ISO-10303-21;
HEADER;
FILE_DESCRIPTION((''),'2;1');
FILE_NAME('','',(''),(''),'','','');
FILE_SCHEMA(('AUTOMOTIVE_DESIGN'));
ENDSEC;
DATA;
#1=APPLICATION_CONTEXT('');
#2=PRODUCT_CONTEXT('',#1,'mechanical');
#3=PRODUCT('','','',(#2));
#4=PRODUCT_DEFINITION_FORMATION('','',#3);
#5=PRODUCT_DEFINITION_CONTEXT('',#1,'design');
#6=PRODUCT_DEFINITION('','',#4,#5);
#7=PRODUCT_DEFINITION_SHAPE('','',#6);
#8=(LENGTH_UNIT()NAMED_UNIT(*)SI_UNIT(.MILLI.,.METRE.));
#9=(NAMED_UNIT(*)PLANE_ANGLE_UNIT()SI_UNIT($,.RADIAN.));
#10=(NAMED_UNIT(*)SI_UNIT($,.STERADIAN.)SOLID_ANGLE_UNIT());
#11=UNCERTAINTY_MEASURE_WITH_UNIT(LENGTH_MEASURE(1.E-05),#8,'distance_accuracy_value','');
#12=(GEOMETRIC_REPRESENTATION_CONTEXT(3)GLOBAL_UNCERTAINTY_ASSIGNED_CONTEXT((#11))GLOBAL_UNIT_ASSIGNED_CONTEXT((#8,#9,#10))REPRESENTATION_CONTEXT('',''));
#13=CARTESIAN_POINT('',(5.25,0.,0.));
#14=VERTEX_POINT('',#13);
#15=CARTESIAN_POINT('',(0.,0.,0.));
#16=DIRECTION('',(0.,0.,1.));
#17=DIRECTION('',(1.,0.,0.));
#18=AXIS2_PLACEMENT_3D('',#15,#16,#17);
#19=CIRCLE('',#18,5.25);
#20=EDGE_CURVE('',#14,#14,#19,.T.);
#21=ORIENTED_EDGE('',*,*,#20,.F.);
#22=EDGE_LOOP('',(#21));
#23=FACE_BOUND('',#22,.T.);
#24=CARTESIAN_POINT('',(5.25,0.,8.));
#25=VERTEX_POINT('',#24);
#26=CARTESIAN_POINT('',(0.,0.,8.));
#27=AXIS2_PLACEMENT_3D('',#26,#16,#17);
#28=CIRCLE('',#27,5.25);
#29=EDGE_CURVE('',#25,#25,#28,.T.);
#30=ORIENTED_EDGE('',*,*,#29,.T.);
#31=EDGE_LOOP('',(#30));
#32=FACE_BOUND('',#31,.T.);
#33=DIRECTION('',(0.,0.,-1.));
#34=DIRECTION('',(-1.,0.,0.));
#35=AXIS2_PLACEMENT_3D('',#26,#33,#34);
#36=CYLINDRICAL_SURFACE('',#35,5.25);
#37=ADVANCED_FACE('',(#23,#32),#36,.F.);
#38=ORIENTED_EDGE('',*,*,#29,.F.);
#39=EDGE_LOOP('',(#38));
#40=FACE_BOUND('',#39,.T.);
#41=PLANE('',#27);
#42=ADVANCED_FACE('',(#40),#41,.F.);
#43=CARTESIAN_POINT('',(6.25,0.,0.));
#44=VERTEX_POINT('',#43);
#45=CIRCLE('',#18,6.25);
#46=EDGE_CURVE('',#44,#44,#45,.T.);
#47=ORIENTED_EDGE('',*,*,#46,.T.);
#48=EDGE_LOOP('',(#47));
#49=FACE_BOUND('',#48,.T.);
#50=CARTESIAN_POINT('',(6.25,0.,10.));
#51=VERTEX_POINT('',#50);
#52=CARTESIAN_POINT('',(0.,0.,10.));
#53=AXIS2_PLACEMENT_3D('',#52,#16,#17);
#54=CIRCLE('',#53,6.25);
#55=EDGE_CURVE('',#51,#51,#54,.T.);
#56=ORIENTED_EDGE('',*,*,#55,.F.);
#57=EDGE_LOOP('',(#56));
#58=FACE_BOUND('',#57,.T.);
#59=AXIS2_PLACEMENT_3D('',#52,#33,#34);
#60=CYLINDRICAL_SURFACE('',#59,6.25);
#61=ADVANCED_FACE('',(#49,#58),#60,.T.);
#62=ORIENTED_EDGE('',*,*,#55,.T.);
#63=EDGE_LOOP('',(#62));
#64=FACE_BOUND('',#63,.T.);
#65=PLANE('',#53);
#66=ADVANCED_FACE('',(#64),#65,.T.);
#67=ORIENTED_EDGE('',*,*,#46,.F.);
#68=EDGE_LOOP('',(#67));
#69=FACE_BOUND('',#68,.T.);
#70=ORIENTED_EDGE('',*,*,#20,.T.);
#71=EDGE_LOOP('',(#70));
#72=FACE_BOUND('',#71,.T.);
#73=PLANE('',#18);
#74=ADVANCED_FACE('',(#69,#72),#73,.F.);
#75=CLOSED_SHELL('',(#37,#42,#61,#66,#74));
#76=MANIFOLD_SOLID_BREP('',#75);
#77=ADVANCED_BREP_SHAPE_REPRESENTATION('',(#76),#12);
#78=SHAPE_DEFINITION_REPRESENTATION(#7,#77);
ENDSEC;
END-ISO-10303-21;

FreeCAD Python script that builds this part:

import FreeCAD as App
import Part
import Sketcher

V = App.Vector

doc = App.newDocument("Part")
body = doc.addObject("PartDesign::Body", "Body")

# Sketch on XY plane
sketch1 = body.newObject("Sketcher::SketchObject", "Sketch")
sketch1.AttachmentSupport = (doc.getObject("XY_Plane"), [""])
sketch1.MapMode = "FlatFace"
sketch1.addGeometry(Part.Circle(V(0, 0, 0), V(0, 0, 1), 6), False)
sketch1.addConstraint([
    Sketcher.Constraint("Coincident", 0, 3, -1, 1),
    Sketcher.Constraint("Diameter", 0, 12.5),
])
pad1 = body.newObject("PartDesign::Pad", "Pad")
pad1.Profile = sketch1
pad1.Length = 10

# Sketch on XY plane
sketch2 = body.newObject("Sketcher::SketchObject", "Sketch001")
sketch2.AttachmentSupport = (doc.getObject("XY_Plane"), [""])
sketch2.MapMode = "FlatFace"
sketch2.addGeometry(Part.Circle(V(0, 0, 0), V(0, 0, 1), 5), False)
sketch2.addConstraint([
    Sketcher.Constraint("Coincident", 0, 3, -1, 1),
    Sketcher.Constraint("Diameter", 0, 10.5),
])
pocket1 = body.newObject("PartDesign::Pocket", "Pocket")
pocket1.Profile = sketch2
pocket1.Length = 8
pocket1.Reversed = True

doc.recompute()
